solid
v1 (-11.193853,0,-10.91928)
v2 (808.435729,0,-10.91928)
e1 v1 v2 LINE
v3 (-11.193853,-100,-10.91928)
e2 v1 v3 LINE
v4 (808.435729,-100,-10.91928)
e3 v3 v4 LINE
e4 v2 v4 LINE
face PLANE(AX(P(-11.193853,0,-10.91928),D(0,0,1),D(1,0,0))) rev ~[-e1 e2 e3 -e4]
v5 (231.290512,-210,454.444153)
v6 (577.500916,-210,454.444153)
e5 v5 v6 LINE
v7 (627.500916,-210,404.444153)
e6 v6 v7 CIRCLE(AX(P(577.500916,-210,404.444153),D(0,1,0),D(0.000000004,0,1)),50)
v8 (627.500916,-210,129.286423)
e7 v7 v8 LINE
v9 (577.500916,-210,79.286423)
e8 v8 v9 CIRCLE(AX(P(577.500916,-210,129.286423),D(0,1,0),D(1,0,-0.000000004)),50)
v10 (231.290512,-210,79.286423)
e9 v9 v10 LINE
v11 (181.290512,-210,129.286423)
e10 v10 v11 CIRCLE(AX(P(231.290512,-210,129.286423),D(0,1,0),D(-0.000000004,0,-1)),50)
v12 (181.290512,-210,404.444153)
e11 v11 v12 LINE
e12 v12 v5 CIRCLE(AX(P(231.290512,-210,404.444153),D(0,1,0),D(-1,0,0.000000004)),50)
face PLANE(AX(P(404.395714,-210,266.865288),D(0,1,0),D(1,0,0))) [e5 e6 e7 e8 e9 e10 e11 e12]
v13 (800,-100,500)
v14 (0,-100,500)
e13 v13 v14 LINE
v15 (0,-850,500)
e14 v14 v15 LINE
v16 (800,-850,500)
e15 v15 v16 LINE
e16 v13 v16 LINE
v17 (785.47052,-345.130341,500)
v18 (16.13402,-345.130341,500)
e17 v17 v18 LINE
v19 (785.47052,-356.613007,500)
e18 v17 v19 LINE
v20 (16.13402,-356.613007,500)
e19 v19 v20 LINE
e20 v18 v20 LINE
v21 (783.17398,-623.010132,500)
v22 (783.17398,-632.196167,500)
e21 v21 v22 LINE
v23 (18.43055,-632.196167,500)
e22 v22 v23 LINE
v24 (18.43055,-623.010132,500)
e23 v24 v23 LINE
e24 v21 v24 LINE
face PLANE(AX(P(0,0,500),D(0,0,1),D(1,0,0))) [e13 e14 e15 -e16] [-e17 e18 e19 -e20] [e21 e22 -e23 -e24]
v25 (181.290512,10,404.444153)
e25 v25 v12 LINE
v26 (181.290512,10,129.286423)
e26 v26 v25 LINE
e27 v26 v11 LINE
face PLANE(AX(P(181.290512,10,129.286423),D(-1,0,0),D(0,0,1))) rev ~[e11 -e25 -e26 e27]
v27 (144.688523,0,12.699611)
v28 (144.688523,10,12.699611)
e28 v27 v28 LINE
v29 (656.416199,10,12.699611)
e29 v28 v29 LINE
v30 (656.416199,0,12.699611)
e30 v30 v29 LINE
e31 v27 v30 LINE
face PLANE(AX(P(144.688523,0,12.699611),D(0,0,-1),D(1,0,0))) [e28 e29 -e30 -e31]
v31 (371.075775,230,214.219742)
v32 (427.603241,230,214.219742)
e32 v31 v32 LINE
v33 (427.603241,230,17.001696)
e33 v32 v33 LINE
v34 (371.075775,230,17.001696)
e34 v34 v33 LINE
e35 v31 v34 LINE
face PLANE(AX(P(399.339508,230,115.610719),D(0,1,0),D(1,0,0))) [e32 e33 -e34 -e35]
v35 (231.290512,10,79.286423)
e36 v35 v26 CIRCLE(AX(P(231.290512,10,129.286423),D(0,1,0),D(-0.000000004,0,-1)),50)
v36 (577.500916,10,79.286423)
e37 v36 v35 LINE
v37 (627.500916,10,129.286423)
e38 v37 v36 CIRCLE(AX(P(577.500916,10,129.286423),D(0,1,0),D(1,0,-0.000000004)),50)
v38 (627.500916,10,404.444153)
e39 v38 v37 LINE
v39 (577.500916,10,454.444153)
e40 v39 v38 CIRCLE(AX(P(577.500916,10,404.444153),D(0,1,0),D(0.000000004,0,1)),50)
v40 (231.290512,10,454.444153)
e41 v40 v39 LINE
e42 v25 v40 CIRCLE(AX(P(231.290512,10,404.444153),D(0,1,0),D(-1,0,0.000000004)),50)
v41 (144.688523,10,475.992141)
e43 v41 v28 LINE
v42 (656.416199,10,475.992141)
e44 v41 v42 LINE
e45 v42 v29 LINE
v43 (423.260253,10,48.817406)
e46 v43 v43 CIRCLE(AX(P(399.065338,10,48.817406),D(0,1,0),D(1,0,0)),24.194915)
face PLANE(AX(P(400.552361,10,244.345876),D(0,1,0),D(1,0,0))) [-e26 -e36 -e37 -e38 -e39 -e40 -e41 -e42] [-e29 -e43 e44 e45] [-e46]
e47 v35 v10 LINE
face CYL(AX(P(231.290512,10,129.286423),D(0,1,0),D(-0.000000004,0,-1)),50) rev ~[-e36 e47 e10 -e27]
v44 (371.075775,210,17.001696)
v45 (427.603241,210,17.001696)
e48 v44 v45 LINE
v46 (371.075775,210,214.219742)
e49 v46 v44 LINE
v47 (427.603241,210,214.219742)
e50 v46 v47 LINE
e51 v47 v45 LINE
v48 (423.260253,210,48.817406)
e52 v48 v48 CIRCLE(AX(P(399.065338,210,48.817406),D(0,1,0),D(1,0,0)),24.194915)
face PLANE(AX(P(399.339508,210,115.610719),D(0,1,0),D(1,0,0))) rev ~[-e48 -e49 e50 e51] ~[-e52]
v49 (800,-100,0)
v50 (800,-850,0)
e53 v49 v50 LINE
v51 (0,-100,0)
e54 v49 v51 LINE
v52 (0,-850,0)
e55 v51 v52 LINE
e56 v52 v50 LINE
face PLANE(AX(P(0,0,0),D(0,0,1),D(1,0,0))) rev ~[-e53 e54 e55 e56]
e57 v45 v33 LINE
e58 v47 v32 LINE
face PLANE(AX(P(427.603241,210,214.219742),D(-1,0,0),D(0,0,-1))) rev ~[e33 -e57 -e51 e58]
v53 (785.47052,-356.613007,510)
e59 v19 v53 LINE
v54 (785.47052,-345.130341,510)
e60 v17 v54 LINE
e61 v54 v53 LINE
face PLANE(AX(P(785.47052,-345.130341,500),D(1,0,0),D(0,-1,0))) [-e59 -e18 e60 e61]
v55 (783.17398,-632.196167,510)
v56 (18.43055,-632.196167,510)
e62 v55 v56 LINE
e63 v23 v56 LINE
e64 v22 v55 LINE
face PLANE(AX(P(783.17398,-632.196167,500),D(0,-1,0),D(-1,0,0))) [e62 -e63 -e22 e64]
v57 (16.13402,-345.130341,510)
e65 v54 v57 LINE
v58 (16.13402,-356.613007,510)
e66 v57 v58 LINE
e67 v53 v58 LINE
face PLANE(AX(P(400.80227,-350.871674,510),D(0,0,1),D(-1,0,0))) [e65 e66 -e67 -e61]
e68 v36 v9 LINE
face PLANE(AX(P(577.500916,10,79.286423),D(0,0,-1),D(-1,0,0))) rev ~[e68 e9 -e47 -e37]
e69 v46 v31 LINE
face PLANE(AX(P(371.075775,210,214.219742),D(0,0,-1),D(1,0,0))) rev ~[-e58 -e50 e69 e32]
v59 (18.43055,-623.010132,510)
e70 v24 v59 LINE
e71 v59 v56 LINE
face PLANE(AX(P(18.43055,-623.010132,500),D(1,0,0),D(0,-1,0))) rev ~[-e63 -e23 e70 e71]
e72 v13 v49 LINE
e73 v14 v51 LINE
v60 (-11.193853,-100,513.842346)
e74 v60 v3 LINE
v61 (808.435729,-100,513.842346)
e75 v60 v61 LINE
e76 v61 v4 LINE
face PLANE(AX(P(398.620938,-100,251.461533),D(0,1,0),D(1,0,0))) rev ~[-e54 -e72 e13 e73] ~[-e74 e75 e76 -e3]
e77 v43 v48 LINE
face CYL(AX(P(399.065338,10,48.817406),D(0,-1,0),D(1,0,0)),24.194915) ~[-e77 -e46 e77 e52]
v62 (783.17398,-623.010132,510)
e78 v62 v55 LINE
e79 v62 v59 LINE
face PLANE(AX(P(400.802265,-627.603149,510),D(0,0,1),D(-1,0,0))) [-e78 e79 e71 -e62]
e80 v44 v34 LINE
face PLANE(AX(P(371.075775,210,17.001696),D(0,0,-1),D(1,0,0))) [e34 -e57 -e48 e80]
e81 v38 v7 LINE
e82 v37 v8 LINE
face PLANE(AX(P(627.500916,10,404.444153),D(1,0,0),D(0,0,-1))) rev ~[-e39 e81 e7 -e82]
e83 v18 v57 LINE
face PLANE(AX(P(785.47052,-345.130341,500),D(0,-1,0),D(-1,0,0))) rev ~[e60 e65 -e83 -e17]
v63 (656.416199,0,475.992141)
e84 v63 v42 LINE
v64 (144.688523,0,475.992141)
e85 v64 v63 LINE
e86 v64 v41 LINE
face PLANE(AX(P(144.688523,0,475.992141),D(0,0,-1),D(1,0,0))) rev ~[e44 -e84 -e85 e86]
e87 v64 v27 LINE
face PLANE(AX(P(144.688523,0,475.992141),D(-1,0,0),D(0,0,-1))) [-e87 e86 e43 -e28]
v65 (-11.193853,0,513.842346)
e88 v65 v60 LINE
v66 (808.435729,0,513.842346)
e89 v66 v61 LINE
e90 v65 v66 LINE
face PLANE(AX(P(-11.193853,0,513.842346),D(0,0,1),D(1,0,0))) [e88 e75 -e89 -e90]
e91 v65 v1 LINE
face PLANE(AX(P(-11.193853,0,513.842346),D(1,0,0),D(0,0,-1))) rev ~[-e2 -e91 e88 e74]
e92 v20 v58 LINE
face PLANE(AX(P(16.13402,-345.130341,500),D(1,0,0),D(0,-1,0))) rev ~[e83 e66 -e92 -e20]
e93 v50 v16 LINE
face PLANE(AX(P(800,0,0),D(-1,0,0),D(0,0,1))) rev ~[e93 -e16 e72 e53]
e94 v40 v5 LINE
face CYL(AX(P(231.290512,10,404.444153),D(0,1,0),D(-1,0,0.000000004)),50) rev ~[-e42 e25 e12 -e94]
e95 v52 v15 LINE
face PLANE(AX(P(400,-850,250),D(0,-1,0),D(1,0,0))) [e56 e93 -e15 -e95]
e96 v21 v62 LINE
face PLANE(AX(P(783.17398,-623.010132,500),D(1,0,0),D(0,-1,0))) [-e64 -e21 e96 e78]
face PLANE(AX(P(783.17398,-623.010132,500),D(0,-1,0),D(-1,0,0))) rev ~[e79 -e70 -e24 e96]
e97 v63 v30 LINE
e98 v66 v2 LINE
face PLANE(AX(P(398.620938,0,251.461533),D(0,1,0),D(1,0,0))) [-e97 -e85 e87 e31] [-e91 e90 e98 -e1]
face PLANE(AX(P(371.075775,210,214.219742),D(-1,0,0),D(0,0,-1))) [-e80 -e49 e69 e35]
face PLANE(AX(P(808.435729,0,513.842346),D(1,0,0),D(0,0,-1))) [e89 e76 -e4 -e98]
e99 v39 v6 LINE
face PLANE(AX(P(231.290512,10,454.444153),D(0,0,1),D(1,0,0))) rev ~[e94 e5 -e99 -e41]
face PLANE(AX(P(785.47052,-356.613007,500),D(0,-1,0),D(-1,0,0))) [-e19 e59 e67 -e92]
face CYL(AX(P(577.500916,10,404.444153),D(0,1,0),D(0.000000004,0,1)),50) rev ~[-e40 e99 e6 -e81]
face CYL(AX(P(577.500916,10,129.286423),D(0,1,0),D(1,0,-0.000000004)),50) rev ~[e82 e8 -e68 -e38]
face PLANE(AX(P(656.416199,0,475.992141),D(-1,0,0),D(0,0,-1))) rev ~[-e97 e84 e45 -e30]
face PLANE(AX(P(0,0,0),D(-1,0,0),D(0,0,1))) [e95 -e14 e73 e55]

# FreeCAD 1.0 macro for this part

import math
import FreeCAD as App
import Part
import Sketcher

V = App.Vector
Q = App.Units.Quantity


def add_polygon(sketch, points):
    """Adds a closed chain of lines whose ends are joined by coincident constraints."""
    first, n = sketch.GeometryCount, len(points)
    for a, b in zip(points, points[1:] + points[:1]):
        sketch.addGeometry(Part.LineSegment(App.Vector(*a, 0), App.Vector(*b, 0)), False)
    for i in range(n):
        sketch.addConstraint(Sketcher.Constraint("Coincident", first + i, 2, first + (i + 1) % n, 1))

doc = App.newDocument("Part")
body = doc.addObject("PartDesign::Body", "Body")

# Sketch on XZ plane
sketch1 = body.newObject("Sketcher::SketchObject", "Sketch")
sketch1.AttachmentSupport = (doc.getObject("XZ_Plane"), [""])
sketch1.MapMode = "FlatFace"
add_polygon(sketch1, [(0, 500), (0, 0), (800, 0), (800, 500)])  # lines 0-3
sketch1.addConstraint([
    Sketcher.Constraint("Vertical", 0),
    Sketcher.Constraint("Horizontal", 1),
    Sketcher.Constraint("Vertical", 2),
    Sketcher.Constraint("Horizontal", 3),
    Sketcher.Constraint("Coincident", 0, 2, -1, 1),
    Sketcher.Constraint("DistanceX", 1, 1, 1, 2, Q("800 mm")),
    Sketcher.Constraint("DistanceY", 0, 2, 0, 1, Q("500 mm")),
])
pad1 = body.newObject("PartDesign::Pad", "Pad")
pad1.Profile = sketch1
pad1.Length = 850

# Sketch on XZ plane
sketch2 = body.newObject("Sketcher::SketchObject", "Sketch001")
sketch2.AttachmentSupport = (doc.getObject("XZ_Plane"), [""])
sketch2.MapMode = "FlatFace"
add_polygon(sketch2, [(144.688523, 12.699611), (144.688523, 475.992141), (656.416199, 475.992141), (656.416199, 12.699611)])  # lines 0-3
sketch2.addConstraint([
    Sketcher.Constraint("Vertical", 0),
    Sketcher.Constraint("Horizontal", 1),
    Sketcher.Constraint("Vertical", 2),
    Sketcher.Constraint("Horizontal", 3),
    Sketcher.Constraint("DistanceY", 0, 1, 0, 2, Q("463.29253 mm")),
    Sketcher.Constraint("DistanceX", -1, 1, 1, 2, Q("656.416199 mm")),
    Sketcher.Constraint("DistanceX", 1, 1, 1, 2, Q("511.727677 mm")),
    Sketcher.Constraint("DistanceY", -1, 1, 0, 2, Q("475.992141 mm")),
])
pad2 = body.newObject("PartDesign::Pad", "Pad001")
pad2.Profile = sketch2
pad2.Length = 10
pad2.Reversed = True

# Sketch on XZ plane
sketch3 = body.newObject("Sketcher::SketchObject", "Sketch002")
sketch3.AttachmentSupport = (doc.getObject("XZ_Plane"), [""])
sketch3.MapMode = "FlatFace"
sketch3.AttachmentOffset = App.Placement(V(0, 0, -10), App.Rotation())
sketch3.addGeometry([
    Part.LineSegment(V(181.290512, 129.286423, 0), V(181.290512, 404.444153, 0)),  # 0
    Part.ArcOfCircle(Part.Circle(V(231.290512, 404.444153, 0), V(0, 0, 1), 50), math.radians(90), math.radians(180)),  # 1
    Part.LineSegment(V(231.290512, 454.444153, 0), V(577.500916, 454.444153, 0)),  # 2
    Part.ArcOfCircle(Part.Circle(V(577.500916, 404.444153, 0), V(0, 0, 1), 50), math.radians(0), math.radians(90)),  # 3
    Part.LineSegment(V(627.500916, 404.444153, 0), V(627.500916, 129.286423, 0)),  # 4
    Part.ArcOfCircle(Part.Circle(V(577.500916, 129.286423, 0), V(0, 0, 1), 50), math.radians(-90), math.radians(0)),  # 5
    Part.LineSegment(V(577.500916, 79.286423, 0), V(231.290512, 79.286423, 0)),  # 6
    Part.ArcOfCircle(Part.Circle(V(231.290512, 129.286423, 0), V(0, 0, 1), 50), math.radians(-180), math.radians(-90)),  # 7
], False)
sketch3.addConstraint([
    Sketcher.Constraint("Tangent", 0, 2, 1, 2),
    Sketcher.Constraint("Tangent", 1, 1, 2, 1),
    Sketcher.Constraint("Tangent", 2, 2, 3, 2),
    Sketcher.Constraint("Tangent", 3, 1, 4, 1),
    Sketcher.Constraint("Tangent", 4, 2, 5, 2),
    Sketcher.Constraint("Tangent", 5, 1, 6, 1),
    Sketcher.Constraint("Tangent", 6, 2, 7, 2),
    Sketcher.Constraint("Tangent", 7, 1, 0, 1),
    Sketcher.Constraint("Vertical", 0),
    Sketcher.Constraint("Horizontal", 2),
    Sketcher.Constraint("Vertical", 4),
    Sketcher.Constraint("Horizontal", 6),
    Sketcher.Constraint("Equal", 1, 3),
    Sketcher.Constraint("Equal", 3, 5),
    Sketcher.Constraint("Equal", 5, 7),
    Sketcher.Constraint("Radius", 1, Q("50 mm")),
    Sketcher.Constraint("DistanceY", 0, 1, 0, 2, Q("275.15773 mm")),
    Sketcher.Constraint("DistanceX", 2, 1, 2, 2, Q("346.210404 mm")),
    Sketcher.Constraint("DistanceX", -1, 1, 0, 2, Q("181.290512 mm")),
    Sketcher.Constraint("DistanceY", -1, 1, 1, 3, Q("404.444153 mm")),
])
pocket1 = body.newObject("PartDesign::Pocket", "Pocket")
pocket1.Profile = sketch3
pocket1.Length = 220
pocket1.Reversed = True

# Sketch on XZ plane
sketch4 = body.newObject("Sketcher::SketchObject", "Sketch003")
sketch4.AttachmentSupport = (doc.getObject("XZ_Plane"), [""])
sketch4.MapMode = "FlatFace"
sketch4.AttachmentOffset = App.Placement(V(0, 0, -10), App.Rotation())
sketch4.addGeometry(Part.Circle(V(399.065338, 48.817406, 0), V(0, 0, 1), 24.194915), False)
sketch4.addConstraint([
    Sketcher.Constraint("Diameter", 0, Q("48.38983 mm")),
    Sketcher.Constraint("DistanceX", -1, 1, 0, 3, Q("399.065338 mm")),
    Sketcher.Constraint("DistanceY", -1, 1, 0, 3, Q("48.817406 mm")),
])
pad3 = body.newObject("PartDesign::Pad", "Pad002")
pad3.Profile = sketch4
pad3.Length = 200
pad3.Reversed = True

# Sketch on XZ plane
sketch5 = body.newObject("Sketcher::SketchObject", "Sketch004")
sketch5.AttachmentSupport = (doc.getObject("XZ_Plane"), [""])
sketch5.MapMode = "FlatFace"
sketch5.AttachmentOffset = App.Placement(V(0, 0, -210), App.Rotation())
add_polygon(sketch5, [(371.075775, 17.001696), (371.075775, 214.219742), (427.603241, 214.219742), (427.603241, 17.001696)])  # lines 0-3
sketch5.addConstraint([
    Sketcher.Constraint("Vertical", 0),
    Sketcher.Constraint("Horizontal", 1),
    Sketcher.Constraint("Vertical", 2),
    Sketcher.Constraint("Horizontal", 3),
    Sketcher.Constraint("DistanceX", 1, 1, 1, 2, Q("56.527466 mm")),
    Sketcher.Constraint("DistanceY", 0, 1, 0, 2, Q("197.218046 mm")),
    Sketcher.Constraint("DistanceY", -1, 1, 0, 2, Q("214.219742 mm")),
    Sketcher.Constraint("DistanceX", -1, 1, 1, 2, Q("427.603241 mm")),
])
pad4 = body.newObject("PartDesign::Pad", "Pad003")
pad4.Profile = sketch5
pad4.Length = 20
pad4.Reversed = True

# Sketch on XZ plane
sketch6 = body.newObject("Sketcher::SketchObject", "Sketch005")
sketch6.AttachmentSupport = (doc.getObject("XZ_Plane"), [""])
sketch6.MapMode = "FlatFace"
add_polygon(sketch6, [(-11.193853, -10.91928), (-11.193853, 513.842346), (808.435729, 513.842346), (808.435729, -10.91928)])  # lines 0-3
add_polygon(sketch6, [(640.789124, 472.504242), (165.408142, 472.504242), (165.408142, 61.425892), (640.789124, 61.425892)])  # lines 4-7
sketch6.addConstraint([
    Sketcher.Constraint("Vertical", 0),
    Sketcher.Constraint("Horizontal", 1),
    Sketcher.Constraint("Vertical", 2),
    Sketcher.Constraint("Horizontal", 3),
    Sketcher.Constraint("Horizontal", 4),
    Sketcher.Constraint("Vertical", 5),
    Sketcher.Constraint("Horizontal", 6),
    Sketcher.Constraint("Vertical", 7),
    Sketcher.Constraint("DistanceX", 4, 2, 4, 1, Q("475.380982 mm")),
    Sketcher.Constraint("DistanceY", 5, 2, 5, 1, Q("411.07835 mm")),
    Sketcher.Constraint("DistanceX", 1, 1, 1, 2, Q("819.629583 mm")),
    Sketcher.Constraint("DistanceY", 0, 1, 0, 2, Q("524.761626 mm")),
    Sketcher.Constraint("DistanceX", -1, 1, 1, 2, Q("808.435729 mm")),
    Sketcher.Constraint("DistanceY", 2, 2, -1, 1, Q("10.91928 mm")),
    Sketcher.Constraint("DistanceX", -1, 1, 4, 2, Q("165.408142 mm")),
    Sketcher.Constraint("DistanceY", -1, 1, 4, 2, Q("472.504242 mm")),
])
pad5 = body.newObject("PartDesign::Pad", "Pad004")
pad5.Profile = sketch6
pad5.Length = 100

# Sketch on XY plane
sketch7 = body.newObject("Sketcher::SketchObject", "Sketch006")
sketch7.AttachmentSupport = (doc.getObject("XY_Plane"), [""])
sketch7.MapMode = "FlatFace"
sketch7.AttachmentOffset = App.Placement(V(0, 0, 500), App.Rotation())
add_polygon(sketch7, [(785.47052, -356.613007), (785.47052, -345.130341), (16.13402, -345.130341), (16.13402, -356.613007)])  # lines 0-3
add_polygon(sketch7, [(783.17398, -632.196167), (783.17398, -623.010132), (18.43055, -623.010132), (18.43055, -632.196167)])  # lines 4-7
sketch7.addConstraint([
    Sketcher.Constraint("Vertical", 0),
    Sketcher.Constraint("Horizontal", 1),
    Sketcher.Constraint("Vertical", 2),
    Sketcher.Constraint("Horizontal", 3),
    Sketcher.Constraint("Vertical", 4),
    Sketcher.Constraint("Horizontal", 5),
    Sketcher.Constraint("Vertical", 6),
    Sketcher.Constraint("Horizontal", 7),
    Sketcher.Constraint("DistanceX", 1, 2, 1, 1, Q("769.3365 mm")),
    Sketcher.Constraint("DistanceX", 5, 2, 5, 1, Q("764.743431 mm")),
    Sketcher.Constraint("DistanceY", 0, 1, 0, 2, Q("11.482666 mm")),
    Sketcher.Constraint("DistanceY", 4, 1, 4, 2, Q("9.186035 mm")),
    Sketcher.Constraint("DistanceX", -1, 1, 0, 2, Q("785.47052 mm")),
    Sketcher.Constraint("DistanceY", 0, 2, -1, 1, Q("345.130341 mm")),
    Sketcher.Constraint("DistanceX", -1, 1, 4, 2, Q("783.17398 mm")),
    Sketcher.Constraint("DistanceY", 4, 2, -1, 1, Q("623.010132 mm")),
])
pad6 = body.newObject("PartDesign::Pad", "Pad005")
pad6.Profile = sketch7
pad6.Length = 10

doc.recompute()
